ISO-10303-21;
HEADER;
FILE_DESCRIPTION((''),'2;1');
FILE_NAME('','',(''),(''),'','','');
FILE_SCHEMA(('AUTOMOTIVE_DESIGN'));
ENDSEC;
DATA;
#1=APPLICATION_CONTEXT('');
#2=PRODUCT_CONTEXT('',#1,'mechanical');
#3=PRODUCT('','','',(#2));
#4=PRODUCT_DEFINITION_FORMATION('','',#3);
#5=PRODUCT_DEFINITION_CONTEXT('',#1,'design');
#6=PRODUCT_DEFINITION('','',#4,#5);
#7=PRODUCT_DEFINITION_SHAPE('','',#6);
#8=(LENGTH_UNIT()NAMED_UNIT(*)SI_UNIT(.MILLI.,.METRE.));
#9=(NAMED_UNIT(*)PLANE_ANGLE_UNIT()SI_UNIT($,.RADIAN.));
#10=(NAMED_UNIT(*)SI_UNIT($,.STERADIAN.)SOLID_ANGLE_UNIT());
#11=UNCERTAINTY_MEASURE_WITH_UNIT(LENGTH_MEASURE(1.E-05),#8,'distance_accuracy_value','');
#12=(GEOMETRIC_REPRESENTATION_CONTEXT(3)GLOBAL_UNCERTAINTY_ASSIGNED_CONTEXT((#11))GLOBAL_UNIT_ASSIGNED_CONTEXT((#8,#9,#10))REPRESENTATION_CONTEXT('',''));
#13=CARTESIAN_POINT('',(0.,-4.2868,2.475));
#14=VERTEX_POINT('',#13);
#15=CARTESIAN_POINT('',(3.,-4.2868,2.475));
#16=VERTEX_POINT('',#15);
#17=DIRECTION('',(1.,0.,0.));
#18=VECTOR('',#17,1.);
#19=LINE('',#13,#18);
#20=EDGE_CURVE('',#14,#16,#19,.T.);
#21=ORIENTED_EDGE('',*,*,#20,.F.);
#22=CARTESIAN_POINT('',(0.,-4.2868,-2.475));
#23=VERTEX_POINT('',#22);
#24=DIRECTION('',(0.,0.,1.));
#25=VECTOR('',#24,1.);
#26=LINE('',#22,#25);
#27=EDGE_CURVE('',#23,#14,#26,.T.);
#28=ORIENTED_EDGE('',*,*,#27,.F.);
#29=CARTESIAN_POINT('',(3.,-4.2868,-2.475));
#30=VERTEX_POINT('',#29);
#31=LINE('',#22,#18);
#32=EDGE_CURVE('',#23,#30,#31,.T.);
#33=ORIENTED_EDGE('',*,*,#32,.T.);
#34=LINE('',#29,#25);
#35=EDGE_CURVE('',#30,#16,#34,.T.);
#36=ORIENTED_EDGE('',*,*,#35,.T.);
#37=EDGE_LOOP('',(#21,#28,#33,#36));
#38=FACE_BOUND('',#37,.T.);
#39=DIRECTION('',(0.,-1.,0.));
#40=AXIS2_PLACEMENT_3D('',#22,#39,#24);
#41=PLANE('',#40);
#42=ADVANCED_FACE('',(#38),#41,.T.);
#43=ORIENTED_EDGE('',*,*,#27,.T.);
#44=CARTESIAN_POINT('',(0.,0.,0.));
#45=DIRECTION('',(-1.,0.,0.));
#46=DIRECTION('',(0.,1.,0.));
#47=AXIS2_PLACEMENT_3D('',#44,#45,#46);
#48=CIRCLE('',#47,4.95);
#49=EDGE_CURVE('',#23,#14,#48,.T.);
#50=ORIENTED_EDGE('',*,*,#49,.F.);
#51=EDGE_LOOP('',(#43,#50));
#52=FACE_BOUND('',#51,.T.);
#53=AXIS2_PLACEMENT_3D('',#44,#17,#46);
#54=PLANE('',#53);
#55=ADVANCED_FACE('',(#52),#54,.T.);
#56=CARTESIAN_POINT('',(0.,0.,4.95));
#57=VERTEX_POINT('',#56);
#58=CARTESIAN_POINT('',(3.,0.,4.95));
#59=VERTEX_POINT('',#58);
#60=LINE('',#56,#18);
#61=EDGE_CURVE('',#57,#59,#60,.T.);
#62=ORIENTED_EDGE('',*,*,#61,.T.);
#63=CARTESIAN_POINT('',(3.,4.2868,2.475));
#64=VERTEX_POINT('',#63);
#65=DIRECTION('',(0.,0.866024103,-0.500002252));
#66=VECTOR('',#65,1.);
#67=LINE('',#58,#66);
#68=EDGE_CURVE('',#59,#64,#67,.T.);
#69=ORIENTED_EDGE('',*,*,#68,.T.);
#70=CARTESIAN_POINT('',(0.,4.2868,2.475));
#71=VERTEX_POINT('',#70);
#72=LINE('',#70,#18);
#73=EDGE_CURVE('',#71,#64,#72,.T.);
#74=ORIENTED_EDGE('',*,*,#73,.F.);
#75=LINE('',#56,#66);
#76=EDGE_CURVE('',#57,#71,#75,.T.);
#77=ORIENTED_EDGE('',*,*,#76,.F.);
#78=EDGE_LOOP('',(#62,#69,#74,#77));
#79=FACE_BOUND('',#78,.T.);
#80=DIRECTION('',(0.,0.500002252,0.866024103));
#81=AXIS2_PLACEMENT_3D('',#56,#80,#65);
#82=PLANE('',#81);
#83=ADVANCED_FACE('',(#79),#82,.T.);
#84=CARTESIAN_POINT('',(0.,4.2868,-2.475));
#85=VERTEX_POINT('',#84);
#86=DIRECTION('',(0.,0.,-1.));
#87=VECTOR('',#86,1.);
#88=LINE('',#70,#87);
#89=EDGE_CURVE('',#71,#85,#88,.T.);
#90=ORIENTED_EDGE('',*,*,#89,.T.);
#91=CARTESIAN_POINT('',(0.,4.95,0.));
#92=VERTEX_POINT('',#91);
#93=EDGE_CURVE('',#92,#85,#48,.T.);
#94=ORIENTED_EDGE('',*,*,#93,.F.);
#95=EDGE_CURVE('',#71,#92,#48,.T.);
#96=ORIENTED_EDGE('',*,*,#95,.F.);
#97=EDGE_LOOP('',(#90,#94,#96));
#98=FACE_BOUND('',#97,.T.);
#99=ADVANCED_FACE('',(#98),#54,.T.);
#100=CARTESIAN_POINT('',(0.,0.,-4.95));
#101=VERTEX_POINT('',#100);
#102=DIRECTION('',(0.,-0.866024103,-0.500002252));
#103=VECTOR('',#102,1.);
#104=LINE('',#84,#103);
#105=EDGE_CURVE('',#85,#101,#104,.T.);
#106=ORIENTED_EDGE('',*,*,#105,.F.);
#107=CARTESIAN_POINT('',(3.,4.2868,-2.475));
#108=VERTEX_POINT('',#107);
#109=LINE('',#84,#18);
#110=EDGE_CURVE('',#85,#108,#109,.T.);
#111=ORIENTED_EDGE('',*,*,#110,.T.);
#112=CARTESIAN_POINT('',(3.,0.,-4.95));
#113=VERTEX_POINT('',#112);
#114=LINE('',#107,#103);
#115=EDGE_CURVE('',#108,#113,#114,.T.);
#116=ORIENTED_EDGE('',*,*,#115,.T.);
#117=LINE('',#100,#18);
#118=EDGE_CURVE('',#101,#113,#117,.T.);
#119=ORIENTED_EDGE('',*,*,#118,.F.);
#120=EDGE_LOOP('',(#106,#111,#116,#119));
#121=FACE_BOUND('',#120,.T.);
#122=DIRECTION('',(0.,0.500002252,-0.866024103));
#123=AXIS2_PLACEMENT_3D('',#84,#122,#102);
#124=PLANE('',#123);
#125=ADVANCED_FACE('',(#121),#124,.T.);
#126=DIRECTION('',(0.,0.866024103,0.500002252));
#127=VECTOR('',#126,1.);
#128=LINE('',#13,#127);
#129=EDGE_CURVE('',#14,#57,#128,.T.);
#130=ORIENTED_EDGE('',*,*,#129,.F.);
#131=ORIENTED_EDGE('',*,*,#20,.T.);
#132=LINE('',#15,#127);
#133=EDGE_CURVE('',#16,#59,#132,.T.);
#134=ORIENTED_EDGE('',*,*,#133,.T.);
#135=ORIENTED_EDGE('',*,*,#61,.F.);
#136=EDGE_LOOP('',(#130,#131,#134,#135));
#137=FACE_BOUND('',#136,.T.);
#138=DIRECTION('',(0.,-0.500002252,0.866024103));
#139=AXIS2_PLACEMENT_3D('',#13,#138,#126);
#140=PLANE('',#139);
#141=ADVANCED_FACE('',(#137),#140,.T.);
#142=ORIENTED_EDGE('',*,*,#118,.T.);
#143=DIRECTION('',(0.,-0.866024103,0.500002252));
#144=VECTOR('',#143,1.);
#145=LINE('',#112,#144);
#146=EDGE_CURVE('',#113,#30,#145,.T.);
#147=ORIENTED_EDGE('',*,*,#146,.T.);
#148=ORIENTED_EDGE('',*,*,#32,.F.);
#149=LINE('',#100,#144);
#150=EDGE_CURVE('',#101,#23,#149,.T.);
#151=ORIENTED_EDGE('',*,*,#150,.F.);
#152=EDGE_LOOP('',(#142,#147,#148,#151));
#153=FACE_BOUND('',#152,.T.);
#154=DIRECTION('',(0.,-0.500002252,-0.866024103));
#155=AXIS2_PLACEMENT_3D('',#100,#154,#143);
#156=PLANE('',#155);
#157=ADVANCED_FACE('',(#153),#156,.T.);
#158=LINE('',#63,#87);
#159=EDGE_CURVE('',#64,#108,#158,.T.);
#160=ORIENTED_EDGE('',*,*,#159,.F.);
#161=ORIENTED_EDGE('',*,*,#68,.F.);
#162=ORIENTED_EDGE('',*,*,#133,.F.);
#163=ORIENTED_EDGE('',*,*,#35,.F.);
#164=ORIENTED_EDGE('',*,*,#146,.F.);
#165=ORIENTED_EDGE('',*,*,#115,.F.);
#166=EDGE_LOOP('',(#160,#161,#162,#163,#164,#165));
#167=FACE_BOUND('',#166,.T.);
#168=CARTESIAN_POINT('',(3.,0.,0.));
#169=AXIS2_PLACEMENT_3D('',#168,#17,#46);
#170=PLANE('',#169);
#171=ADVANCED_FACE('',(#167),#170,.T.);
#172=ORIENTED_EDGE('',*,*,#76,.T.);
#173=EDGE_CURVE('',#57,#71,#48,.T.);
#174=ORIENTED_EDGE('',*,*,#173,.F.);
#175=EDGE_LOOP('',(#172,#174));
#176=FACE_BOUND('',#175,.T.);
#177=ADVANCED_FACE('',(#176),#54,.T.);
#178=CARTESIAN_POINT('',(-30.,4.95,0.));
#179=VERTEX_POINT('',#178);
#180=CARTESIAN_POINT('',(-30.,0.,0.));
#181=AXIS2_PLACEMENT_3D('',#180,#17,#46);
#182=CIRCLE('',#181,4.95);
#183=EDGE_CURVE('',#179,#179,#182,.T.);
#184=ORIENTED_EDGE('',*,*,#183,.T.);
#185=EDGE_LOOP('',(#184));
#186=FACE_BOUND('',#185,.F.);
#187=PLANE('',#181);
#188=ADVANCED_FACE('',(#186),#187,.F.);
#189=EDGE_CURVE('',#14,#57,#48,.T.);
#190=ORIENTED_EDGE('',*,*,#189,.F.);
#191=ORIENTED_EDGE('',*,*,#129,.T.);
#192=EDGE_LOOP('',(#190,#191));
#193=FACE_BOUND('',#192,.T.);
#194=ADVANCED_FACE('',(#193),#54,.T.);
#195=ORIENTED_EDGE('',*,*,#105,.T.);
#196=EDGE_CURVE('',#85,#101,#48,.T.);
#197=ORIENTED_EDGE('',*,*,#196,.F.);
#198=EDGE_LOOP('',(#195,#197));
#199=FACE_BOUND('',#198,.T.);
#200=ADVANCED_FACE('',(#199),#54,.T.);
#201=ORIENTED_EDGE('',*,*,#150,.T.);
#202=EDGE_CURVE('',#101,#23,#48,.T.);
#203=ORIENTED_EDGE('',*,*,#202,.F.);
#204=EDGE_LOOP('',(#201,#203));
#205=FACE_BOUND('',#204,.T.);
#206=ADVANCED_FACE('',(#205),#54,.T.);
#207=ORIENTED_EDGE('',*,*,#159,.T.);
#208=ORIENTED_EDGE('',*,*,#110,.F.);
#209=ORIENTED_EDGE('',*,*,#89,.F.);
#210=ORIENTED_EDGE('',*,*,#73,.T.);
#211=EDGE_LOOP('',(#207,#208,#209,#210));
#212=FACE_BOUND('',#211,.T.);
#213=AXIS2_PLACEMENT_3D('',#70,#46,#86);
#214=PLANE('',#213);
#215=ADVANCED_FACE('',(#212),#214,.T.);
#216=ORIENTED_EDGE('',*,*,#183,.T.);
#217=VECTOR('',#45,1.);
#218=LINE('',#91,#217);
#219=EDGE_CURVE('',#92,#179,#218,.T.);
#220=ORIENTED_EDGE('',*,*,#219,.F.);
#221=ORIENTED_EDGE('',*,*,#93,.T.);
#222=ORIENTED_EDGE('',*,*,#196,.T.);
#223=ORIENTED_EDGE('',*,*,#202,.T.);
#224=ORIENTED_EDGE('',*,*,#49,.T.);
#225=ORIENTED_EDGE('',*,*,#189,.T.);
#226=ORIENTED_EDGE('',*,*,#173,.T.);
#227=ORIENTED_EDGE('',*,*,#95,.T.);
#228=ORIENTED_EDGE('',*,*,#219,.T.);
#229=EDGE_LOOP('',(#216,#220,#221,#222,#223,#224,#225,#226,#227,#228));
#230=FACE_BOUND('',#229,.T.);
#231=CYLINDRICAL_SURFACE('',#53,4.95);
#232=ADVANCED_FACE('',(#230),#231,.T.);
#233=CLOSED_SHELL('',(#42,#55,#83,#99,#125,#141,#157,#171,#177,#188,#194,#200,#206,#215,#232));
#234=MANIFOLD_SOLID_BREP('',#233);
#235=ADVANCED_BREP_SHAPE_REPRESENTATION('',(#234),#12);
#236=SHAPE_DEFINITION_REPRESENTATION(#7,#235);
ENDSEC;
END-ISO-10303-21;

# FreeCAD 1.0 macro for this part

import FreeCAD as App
import Part
import Sketcher
from FreeCAD import Vector
Q = App.Units.Quantity


def add_polygon(sketch, points):
    """Adds a closed chain of lines whose ends are joined by coincident constraints."""
    first, n = sketch.GeometryCount, len(points)
    for a, b in zip(points, points[1:] + points[:1]):
        sketch.addGeometry(Part.LineSegment(App.Vector(*a, 0), App.Vector(*b, 0)), False)
    for i in range(n):
        sketch.addConstraint(Sketcher.Constraint("Coincident", first + i, 2, first + (i + 1) % n, 1))

doc = App.newDocument("Part")
body = doc.addObject("PartDesign::Body", "Body")

# Sketch on YZ plane
sketch1 = body.newObject("Sketcher::SketchObject", "Sketch")
sketch1.AttachmentSupport = (doc.getObject("YZ_Plane"), [""])
sketch1.MapMode = "FlatFace"
add_polygon(sketch1, [(-4.3, -2.5), (0, -5), (4.3, -2.5), (4.3, 2.5), (0, 5), (-4.3, 2.5)])  # lines 0-5
sketch1.addConstraint([
    Sketcher.Constraint("Vertical", 2),
    Sketcher.Constraint("Vertical", 5),
    Sketcher.Constraint("Symmetric", 0, 2, 3, 2, -1, 1),
    Sketcher.Constraint("Symmetric", 1, 2, 4, 2, -1, 1),
    Sketcher.Constraint("PointOnObject", 0, 2, -2),
    Sketcher.Constraint("Parallel", 0, 3),
    Sketcher.Constraint("Horizontal", 2, 2, 4, 2),
    Sketcher.Constraint("DistanceY", 0, 2, 3, 2, Q("9.9 mm")),
    Sketcher.Constraint("Angle", 0, Q("-30.0001 deg")),
    Sketcher.Constraint("DistanceY", 2, 1, 2, 2, Q("4.95 mm")),
])
pad1 = body.newObject("PartDesign::Pad", "Pad")
pad1.Profile = sketch1
pad1.Length = 3

# Sketch on YZ plane
sketch2 = body.newObject("Sketcher::SketchObject", "Sketch001")
sketch2.AttachmentSupport = (doc.getObject("YZ_Plane"), [""])
sketch2.MapMode = "FlatFace"
sketch2.addGeometry(Part.Circle(Vector(0, 0, 0), Vector(0, 0, 1), 5), False)
sketch2.addConstraint([
    Sketcher.Constraint("Coincident", 0, 3, -1, 1),
    Sketcher.Constraint("Diameter", 0, Q("9.9 mm")),
])
pad2 = body.newObject("PartDesign::Pad", "Pad001")
pad2.Profile = sketch2
pad2.Length = 30
pad2.Reversed = True

doc.recompute()
